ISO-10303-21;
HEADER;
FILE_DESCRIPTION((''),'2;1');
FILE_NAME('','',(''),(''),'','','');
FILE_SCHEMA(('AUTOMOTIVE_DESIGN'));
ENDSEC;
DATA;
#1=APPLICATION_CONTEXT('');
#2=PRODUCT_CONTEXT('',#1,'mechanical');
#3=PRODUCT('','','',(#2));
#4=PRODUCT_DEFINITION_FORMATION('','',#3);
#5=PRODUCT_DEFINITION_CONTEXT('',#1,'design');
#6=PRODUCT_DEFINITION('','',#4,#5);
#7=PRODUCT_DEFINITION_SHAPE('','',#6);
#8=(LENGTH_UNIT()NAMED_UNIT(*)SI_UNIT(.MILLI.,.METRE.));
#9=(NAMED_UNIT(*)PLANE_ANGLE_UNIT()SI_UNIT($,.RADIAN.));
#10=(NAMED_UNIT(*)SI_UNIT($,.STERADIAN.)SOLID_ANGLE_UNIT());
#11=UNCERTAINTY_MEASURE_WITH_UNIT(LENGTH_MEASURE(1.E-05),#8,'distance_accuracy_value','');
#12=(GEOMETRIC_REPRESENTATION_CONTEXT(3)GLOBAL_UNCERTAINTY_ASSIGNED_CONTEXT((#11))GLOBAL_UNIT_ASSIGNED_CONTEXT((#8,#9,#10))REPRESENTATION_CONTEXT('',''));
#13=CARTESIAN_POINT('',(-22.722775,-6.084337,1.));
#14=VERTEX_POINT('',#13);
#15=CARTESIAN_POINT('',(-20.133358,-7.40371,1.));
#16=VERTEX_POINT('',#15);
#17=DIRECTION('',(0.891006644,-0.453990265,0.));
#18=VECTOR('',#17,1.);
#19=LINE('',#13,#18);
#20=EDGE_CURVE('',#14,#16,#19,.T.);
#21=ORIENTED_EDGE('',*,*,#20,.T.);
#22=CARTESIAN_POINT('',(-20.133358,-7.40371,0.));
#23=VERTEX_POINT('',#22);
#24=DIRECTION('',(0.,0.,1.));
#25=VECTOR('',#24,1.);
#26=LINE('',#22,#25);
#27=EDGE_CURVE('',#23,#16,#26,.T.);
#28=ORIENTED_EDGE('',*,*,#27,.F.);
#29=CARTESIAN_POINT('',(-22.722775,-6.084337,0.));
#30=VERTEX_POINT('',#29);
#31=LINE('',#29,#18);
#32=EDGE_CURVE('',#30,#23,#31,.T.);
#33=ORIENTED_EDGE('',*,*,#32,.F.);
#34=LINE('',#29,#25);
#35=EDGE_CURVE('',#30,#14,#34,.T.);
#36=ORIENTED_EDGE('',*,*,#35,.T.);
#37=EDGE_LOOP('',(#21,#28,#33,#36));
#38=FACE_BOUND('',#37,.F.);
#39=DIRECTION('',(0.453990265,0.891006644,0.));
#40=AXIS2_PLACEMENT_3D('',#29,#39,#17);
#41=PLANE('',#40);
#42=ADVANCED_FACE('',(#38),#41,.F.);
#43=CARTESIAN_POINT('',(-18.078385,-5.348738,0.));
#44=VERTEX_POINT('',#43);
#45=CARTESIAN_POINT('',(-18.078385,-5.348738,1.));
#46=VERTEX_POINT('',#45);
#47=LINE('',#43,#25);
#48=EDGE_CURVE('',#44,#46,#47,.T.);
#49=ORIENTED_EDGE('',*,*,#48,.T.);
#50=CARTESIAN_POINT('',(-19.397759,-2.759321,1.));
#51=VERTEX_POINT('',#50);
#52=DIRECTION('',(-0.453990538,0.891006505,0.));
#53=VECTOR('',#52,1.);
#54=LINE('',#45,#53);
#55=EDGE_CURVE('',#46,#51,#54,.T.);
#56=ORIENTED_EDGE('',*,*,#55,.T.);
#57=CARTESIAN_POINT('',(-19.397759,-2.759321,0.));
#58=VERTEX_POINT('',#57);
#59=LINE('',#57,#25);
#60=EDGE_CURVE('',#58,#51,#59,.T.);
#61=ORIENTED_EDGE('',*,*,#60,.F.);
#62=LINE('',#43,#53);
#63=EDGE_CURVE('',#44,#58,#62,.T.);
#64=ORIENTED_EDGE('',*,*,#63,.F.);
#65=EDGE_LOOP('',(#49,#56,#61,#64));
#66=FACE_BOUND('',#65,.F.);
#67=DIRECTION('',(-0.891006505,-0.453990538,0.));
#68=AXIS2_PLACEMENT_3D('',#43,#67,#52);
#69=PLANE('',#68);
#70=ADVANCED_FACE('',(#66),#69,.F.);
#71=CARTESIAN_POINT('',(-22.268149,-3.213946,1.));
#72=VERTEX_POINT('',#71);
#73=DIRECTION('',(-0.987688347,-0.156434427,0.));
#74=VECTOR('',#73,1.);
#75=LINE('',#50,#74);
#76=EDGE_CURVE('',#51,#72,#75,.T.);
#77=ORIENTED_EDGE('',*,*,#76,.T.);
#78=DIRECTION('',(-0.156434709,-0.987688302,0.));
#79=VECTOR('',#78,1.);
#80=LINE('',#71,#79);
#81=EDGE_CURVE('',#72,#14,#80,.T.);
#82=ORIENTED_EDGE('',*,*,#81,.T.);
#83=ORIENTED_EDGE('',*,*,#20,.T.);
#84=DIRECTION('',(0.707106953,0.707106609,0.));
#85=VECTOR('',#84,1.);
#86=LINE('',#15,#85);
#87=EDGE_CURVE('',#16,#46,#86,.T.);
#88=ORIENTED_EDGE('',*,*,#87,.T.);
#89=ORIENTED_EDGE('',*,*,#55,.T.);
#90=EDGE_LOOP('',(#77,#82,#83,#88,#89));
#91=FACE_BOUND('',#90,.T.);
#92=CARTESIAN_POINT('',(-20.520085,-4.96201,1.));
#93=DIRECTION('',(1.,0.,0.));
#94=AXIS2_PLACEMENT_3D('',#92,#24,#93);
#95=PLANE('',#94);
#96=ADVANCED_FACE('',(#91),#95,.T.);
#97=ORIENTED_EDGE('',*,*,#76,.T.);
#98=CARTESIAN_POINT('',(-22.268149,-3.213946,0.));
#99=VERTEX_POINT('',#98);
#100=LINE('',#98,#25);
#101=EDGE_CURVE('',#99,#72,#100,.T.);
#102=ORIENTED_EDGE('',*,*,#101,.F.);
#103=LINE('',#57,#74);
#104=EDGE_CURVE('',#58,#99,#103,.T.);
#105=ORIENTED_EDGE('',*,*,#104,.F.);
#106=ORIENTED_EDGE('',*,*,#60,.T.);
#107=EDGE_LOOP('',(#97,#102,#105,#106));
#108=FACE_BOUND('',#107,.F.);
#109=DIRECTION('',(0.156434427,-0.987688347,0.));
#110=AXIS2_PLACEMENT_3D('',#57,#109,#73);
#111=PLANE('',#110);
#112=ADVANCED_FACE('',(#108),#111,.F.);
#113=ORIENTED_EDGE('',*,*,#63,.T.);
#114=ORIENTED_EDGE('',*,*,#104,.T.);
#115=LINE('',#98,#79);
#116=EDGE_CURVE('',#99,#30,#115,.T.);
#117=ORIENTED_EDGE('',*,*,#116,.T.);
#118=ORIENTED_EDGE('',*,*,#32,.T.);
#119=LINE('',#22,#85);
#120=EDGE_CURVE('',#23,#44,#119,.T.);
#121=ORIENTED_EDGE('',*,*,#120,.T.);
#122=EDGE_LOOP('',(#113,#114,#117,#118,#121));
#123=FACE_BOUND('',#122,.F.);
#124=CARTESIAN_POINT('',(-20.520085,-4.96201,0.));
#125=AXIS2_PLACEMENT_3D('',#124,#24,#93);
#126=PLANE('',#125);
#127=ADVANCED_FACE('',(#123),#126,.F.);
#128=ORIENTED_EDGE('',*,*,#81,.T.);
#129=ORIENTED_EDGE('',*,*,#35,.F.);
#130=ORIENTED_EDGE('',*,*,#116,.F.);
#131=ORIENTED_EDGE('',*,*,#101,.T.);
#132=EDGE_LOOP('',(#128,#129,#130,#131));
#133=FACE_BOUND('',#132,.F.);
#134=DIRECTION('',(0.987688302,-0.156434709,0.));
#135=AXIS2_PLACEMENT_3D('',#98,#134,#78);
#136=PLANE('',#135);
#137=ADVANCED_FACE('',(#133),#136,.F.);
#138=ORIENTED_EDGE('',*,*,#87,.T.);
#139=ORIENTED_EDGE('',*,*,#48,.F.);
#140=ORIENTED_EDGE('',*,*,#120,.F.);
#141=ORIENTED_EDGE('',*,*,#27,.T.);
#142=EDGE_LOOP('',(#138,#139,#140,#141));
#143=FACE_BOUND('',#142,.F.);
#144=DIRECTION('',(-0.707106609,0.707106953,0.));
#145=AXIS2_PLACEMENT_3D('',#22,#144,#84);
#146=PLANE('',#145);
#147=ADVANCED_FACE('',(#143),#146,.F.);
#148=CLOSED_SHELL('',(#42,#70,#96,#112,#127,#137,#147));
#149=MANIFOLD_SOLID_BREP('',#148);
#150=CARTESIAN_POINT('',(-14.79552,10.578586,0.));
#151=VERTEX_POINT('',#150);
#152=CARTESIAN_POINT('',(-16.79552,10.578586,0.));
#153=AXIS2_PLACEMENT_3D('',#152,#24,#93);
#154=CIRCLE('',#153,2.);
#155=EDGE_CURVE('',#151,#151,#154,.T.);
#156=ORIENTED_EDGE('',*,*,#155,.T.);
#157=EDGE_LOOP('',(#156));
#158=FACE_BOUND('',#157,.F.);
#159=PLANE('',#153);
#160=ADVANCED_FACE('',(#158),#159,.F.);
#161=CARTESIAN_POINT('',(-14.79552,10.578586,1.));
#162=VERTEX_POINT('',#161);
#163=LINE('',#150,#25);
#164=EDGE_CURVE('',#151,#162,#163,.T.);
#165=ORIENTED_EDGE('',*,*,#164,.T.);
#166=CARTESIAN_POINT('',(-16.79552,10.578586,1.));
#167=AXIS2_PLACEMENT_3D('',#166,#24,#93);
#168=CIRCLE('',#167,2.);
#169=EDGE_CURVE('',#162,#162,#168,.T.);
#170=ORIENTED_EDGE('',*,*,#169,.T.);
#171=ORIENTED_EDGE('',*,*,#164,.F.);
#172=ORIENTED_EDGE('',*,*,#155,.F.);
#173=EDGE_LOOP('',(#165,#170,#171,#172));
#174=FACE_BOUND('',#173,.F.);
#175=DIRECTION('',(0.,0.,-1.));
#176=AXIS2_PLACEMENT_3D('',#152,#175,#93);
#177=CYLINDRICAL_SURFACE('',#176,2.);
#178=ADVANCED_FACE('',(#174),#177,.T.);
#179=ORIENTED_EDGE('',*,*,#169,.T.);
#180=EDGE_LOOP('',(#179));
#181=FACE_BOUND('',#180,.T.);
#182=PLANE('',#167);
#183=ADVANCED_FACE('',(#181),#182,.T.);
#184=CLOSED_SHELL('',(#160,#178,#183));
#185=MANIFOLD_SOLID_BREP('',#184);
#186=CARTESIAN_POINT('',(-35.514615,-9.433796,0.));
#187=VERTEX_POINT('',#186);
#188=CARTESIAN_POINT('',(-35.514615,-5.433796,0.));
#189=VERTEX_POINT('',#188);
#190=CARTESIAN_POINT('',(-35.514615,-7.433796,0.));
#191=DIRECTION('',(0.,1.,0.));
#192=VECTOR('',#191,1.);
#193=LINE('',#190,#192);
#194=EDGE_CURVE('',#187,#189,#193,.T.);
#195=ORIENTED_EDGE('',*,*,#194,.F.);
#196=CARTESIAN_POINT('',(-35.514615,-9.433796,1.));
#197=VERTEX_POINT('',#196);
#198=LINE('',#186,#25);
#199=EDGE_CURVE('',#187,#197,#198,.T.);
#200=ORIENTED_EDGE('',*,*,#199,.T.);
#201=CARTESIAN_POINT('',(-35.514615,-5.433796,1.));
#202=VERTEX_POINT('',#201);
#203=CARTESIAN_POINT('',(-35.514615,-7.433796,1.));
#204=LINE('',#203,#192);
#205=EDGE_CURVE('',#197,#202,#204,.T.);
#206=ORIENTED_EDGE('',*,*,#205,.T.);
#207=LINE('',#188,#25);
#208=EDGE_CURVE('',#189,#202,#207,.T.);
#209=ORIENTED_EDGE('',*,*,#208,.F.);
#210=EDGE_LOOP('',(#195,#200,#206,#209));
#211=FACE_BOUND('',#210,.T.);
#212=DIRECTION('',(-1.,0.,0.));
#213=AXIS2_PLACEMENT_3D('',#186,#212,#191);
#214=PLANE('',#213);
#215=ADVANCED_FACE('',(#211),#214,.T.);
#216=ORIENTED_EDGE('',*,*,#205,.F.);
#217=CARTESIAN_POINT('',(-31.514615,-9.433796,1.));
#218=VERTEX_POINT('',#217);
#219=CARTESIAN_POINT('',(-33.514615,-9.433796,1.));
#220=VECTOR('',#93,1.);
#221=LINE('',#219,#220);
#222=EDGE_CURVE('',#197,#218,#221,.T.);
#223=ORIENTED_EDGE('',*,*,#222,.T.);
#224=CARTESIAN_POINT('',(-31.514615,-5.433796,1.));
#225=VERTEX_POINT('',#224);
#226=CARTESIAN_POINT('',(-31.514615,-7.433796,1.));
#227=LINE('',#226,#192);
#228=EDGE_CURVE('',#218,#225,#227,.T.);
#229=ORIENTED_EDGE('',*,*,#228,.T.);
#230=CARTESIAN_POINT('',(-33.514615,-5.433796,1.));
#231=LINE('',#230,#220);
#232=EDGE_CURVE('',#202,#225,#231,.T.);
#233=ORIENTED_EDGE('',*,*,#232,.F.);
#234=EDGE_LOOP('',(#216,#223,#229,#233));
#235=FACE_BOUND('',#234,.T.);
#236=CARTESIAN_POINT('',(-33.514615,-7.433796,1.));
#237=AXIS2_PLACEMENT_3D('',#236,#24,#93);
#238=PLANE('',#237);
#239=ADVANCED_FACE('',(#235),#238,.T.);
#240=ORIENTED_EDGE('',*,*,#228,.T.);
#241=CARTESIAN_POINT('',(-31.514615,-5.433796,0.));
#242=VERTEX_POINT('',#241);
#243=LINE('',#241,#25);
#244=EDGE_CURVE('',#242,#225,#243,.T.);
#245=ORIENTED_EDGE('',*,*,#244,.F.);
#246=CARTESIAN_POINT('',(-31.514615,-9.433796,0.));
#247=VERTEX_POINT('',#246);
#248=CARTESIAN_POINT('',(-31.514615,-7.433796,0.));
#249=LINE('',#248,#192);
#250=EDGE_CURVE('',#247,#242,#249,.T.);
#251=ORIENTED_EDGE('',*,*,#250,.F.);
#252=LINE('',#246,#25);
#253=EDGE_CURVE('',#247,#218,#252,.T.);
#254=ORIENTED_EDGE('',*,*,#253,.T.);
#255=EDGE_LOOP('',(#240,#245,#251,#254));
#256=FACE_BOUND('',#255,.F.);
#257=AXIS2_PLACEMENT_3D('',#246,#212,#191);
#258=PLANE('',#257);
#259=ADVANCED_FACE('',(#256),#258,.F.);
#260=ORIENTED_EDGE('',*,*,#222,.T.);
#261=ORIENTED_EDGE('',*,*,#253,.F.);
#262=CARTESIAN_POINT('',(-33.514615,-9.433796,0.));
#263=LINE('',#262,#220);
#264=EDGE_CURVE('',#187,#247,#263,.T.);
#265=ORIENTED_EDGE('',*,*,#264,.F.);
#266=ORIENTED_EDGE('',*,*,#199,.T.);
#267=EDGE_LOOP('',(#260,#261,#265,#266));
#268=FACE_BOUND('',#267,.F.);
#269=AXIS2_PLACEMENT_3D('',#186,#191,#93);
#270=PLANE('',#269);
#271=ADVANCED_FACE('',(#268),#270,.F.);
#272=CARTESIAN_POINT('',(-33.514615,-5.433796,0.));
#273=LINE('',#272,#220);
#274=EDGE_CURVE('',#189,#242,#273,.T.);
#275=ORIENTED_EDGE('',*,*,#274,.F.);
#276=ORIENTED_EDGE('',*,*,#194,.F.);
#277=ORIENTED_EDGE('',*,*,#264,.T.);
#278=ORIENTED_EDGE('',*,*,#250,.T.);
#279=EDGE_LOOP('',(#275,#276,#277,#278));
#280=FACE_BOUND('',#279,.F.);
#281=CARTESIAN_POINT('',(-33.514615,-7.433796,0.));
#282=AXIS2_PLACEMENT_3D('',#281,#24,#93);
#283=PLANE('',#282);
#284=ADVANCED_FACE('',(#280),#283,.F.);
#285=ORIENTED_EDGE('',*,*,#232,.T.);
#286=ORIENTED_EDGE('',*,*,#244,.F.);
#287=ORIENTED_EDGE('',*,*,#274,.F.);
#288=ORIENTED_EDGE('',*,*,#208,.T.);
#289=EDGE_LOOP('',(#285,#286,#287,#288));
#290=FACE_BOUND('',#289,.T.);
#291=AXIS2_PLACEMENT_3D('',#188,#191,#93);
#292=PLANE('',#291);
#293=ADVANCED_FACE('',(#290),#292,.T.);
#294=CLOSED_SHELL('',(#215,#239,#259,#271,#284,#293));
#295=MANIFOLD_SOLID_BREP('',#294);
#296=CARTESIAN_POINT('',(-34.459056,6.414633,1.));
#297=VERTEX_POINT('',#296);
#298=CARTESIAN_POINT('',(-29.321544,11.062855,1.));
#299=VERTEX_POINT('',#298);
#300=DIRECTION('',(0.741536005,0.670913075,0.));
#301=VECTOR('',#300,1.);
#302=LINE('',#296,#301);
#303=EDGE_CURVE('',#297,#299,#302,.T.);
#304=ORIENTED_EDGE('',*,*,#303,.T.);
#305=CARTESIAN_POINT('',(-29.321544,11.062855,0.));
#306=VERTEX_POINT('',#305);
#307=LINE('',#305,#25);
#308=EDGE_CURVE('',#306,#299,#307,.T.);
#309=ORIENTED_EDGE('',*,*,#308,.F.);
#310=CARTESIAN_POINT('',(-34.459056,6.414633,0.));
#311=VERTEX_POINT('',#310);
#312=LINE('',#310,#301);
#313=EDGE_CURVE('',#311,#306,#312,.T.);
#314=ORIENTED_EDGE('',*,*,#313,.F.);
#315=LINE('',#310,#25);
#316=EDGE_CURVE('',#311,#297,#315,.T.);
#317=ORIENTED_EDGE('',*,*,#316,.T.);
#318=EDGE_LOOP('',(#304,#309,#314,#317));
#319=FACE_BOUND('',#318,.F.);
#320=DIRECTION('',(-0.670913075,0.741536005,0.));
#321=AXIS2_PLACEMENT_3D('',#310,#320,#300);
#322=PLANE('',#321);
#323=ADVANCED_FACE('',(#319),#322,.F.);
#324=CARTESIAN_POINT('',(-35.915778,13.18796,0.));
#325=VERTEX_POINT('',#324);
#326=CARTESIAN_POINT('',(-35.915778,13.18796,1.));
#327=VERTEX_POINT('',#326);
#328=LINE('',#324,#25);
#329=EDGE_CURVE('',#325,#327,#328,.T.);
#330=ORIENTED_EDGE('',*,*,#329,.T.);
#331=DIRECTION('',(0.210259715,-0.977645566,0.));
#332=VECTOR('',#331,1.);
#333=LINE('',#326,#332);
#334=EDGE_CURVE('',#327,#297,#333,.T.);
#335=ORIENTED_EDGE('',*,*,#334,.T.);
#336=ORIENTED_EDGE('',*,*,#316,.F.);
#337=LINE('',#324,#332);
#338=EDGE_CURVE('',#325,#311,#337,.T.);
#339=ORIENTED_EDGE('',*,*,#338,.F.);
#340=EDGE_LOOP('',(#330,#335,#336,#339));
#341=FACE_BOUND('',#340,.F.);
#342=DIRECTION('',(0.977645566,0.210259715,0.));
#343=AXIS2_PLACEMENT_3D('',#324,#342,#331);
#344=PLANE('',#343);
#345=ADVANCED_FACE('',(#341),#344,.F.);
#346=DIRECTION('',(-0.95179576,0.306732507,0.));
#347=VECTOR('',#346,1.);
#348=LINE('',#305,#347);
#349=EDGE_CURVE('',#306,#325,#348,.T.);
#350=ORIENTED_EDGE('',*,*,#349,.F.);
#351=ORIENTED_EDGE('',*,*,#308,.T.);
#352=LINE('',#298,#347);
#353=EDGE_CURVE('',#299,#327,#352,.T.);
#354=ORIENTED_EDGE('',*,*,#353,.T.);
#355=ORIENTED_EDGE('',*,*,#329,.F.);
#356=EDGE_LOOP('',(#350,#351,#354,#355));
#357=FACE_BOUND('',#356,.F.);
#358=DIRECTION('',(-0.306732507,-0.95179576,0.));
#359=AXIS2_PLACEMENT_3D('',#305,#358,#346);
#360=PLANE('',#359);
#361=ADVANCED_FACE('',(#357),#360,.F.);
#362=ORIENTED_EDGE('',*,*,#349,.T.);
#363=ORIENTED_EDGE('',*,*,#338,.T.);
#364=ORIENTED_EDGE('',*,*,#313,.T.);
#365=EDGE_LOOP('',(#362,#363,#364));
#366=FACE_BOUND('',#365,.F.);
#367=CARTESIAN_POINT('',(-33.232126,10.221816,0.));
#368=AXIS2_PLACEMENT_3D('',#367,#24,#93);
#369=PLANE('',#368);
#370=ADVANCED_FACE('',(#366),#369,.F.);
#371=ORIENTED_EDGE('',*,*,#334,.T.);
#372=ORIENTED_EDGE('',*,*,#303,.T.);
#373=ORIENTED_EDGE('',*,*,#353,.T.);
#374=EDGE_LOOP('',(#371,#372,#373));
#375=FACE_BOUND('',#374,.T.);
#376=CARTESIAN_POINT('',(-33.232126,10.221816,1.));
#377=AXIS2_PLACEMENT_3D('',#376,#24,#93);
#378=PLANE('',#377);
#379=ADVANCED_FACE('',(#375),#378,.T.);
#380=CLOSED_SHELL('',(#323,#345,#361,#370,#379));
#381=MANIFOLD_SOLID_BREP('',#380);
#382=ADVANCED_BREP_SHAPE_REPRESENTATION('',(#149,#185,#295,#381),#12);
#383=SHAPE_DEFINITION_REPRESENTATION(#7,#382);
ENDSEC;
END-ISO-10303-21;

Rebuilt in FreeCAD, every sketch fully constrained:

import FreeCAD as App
import Part
import Sketcher
Q = App.Units.Quantity

doc = App.newDocument("Part")
params = doc.addObject("Spreadsheet::Sheet", "Params")
for row, (alias, value) in enumerate([
    ("sketch1_diameter", "4 mm"),
    ("sketch1_width", "4 mm"),
    ("pad1_length", "1 mm"),
], start=1):
    params.set(f"A{row}", alias)
    params.set(f"B{row}", "=" + value)
    params.setAlias(f"B{row}", alias)

body = doc.addObject("PartDesign::Body", "Body")
body.AllowCompound = True

# Sketch on XY plane
sketch1 = body.newObject("Sketcher::SketchObject", "Sketch")
sketch1.AttachmentSupport = (doc.getObject("XY_Plane"), [""])
sketch1.MapMode = "FlatFace"
sketch1.addGeometry([
    Part.LineSegment(App.Vector(-34.459056, 6.414633, 0), App.Vector(-29.321544, 11.062855, 0)),  # 0
    Part.LineSegment(App.Vector(-29.321544, 11.062855, 0), App.Vector(-35.915778, 13.18796, 0)),  # 1
    Part.LineSegment(App.Vector(-35.915778, 13.18796, 0), App.Vector(-34.459056, 6.414633, 0)),  # 2
    Part.LineSegment(App.Vector(-35.514615, -5.433796, 0), App.Vector(-35.514615, -9.433796, 0)),  # 3
    Part.LineSegment(App.Vector(-35.514615, -9.433796, 0), App.Vector(-31.514615, -9.433796, 0)),  # 4
    Part.LineSegment(App.Vector(-31.514615, -9.433796, 0), App.Vector(-31.514615, -5.433796, 0)),  # 5
    Part.LineSegment(App.Vector(-31.514615, -5.433796, 0), App.Vector(-35.514615, -5.433796, 0)),  # 6
    Part.LineSegment(App.Vector(-20.133358, -7.40371, 0), App.Vector(-18.078385, -5.348738, 0)),  # 7
    Part.LineSegment(App.Vector(-18.078385, -5.348738, 0), App.Vector(-19.397759, -2.759321, 0)),  # 8
    Part.LineSegment(App.Vector(-19.397759, -2.759321, 0), App.Vector(-22.268149, -3.213946, 0)),  # 9
    Part.LineSegment(App.Vector(-22.268149, -3.213946, 0), App.Vector(-22.722775, -6.084337, 0)),  # 10
    Part.LineSegment(App.Vector(-22.722775, -6.084337, 0), App.Vector(-20.133358, -7.40371, 0)),  # 11
    Part.Circle(App.Vector(-16.79552, 10.578586, 0), App.Vector(0, 0, 1), 2),  # 12
], False)
sketch1.addConstraint([
    Sketcher.Constraint("Coincident", 0, 2, 1, 1),
    Sketcher.Constraint("Coincident", 1, 2, 2, 1),
    Sketcher.Constraint("Coincident", 2, 2, 0, 1),
    Sketcher.Constraint("Coincident", 3, 2, 4, 1),
    Sketcher.Constraint("Coincident", 4, 2, 5, 1),
    Sketcher.Constraint("Coincident", 5, 2, 6, 1),
    Sketcher.Constraint("Coincident", 6, 2, 3, 1),
    Sketcher.Constraint("Coincident", 7, 2, 8, 1),
    Sketcher.Constraint("Coincident", 8, 2, 9, 1),
    Sketcher.Constraint("Coincident", 9, 2, 10, 1),
    Sketcher.Constraint("Coincident", 10, 2, 11, 1),
    Sketcher.Constraint("Coincident", 11, 2, 7, 1),
    Sketcher.Constraint("Vertical", 3),
    Sketcher.Constraint("Horizontal", 4),
    Sketcher.Constraint("Vertical", 5),
    Sketcher.Constraint("Horizontal", 6),
    Sketcher.Constraint("Equal", 6, 3),
    Sketcher.Constraint("Equal", 0, 1),
    Sketcher.Constraint("Equal", 1, 2),
    Sketcher.Constraint("Equal", 7, 8),
    Sketcher.Constraint("Equal", 8, 9),
    Sketcher.Constraint("Equal", 9, 10),
    Sketcher.Constraint("Equal", 10, 11),
    Sketcher.Constraint("Diameter", 12, Q("4 mm")),
    Sketcher.Constraint("DistanceX", 4, 1, 4, 2, Q("4 mm")),
    Sketcher.Constraint("Angle", 7, Q("44.999986 deg")),
    Sketcher.Constraint("Angle", 8, Q("117.000002 deg")),
    Sketcher.Constraint("Angle", 9, Q("-171.000002 deg")),
    Sketcher.Constraint("DistanceY", 10, 2, 7, 2, Q("0.735599 mm")),
    Sketcher.Constraint("DistanceX", 12, 3, -1, 1, Q("16.79552 mm")),
    Sketcher.Constraint("DistanceX", 1, 2, -1, 1, Q("35.915778 mm")),
    Sketcher.Constraint("DistanceY", -1, 1, 1, 2, Q("13.18796 mm")),
    Sketcher.Constraint("DistanceX", 8, 2, -1, 1, Q("19.397759 mm")),
    Sketcher.Constraint("DistanceY", 8, 2, -1, 1, Q("2.759321 mm")),
    Sketcher.Constraint("DistanceY", 12, 3, 0, 2, Q("0.484269 mm")),
    Sketcher.Constraint("DistanceX", 2, 2, 0, 2, Q("5.137512 mm")),
    Sketcher.Constraint("DistanceX", 3, 2, 2, 2, Q("1.055559 mm")),
    Sketcher.Constraint("DistanceY", 3, 2, 2, 2, Q("15.848429 mm")),
    Sketcher.Constraint("DistanceY", 3, 2, 0, 2, Q("20.496651 mm")),
])
sketch1.setExpression("Constraints[23]", "Params.sketch1_diameter")
sketch1.setExpression("Constraints[24]", "Params.sketch1_width")
pad1 = body.newObject("PartDesign::Pad", "Pad")
pad1.Profile = sketch1
pad1.setExpression("Length", "Params.pad1_length")

doc.recompute()
